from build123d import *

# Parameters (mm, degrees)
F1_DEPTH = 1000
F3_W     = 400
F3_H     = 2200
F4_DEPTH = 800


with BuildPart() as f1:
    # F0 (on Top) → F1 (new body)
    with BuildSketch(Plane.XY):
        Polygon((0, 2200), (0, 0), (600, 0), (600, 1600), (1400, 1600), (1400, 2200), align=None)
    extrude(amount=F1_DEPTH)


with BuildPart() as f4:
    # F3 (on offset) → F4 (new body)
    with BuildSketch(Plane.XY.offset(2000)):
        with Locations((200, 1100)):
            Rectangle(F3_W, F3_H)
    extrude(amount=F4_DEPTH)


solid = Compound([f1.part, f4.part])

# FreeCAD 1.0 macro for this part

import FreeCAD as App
import Part
import Sketcher

V = App.Vector

doc = App.newDocument("Part")
body = doc.addObject("PartDesign::Body", "Body")

# Sketch on XY plane
sketch1 = body.newObject("Sketcher::SketchObject", "Sketch")
sketch1.AttachmentSupport = (doc.getObject("XY_Plane"), [""])
sketch1.MapMode = "FlatFace"
sketch1.addGeometry(Part.LineSegment(V(0, 2200, 0), V(0, 0, 0)), False)
sketch1.addGeometry(Part.LineSegment(V(0, 0, 0), V(600, 0, 0)), False)
sketch1.addGeometry(Part.LineSegment(V(600, 0, 0), V(600, 1600, 0)), False)
sketch1.addGeometry(Part.LineSegment(V(600, 1600, 0), V(1400, 1600, 0)), False)
sketch1.addGeometry(Part.LineSegment(V(1400, 1600, 0), V(1400, 2200, 0)), False)
sketch1.addGeometry(Part.LineSegment(V(1400, 2200, 0), V(0, 2200, 0)), False)
sketch1.addConstraint(Sketcher.Constraint("Coincident", 0, 2, 1, 1))
sketch1.addConstraint(Sketcher.Constraint("Coincident", 1, 2, 2, 1))
sketch1.addConstraint(Sketcher.Constraint("Coincident", 2, 2, 3, 1))
sketch1.addConstraint(Sketcher.Constraint("Coincident", 3, 2, 4, 1))
sketch1.addConstraint(Sketcher.Constraint("Coincident", 4, 2, 5, 1))
sketch1.addConstraint(Sketcher.Constraint("Coincident", 5, 2, 0, 1))
sketch1.addConstraint(Sketcher.Constraint("Vertical", 0))
sketch1.addConstraint(Sketcher.Constraint("Horizontal", 1))
sketch1.addConstraint(Sketcher.Constraint("Vertical", 2))
sketch1.addConstraint(Sketcher.Constraint("Horizontal", 3))
sketch1.addConstraint(Sketcher.Constraint("Vertical", 4))
sketch1.addConstraint(Sketcher.Constraint("Horizontal", 5))
sketch1.addConstraint(Sketcher.Constraint("Coincident", 0, 2, -1, 1))
sketch1.addConstraint(Sketcher.Constraint("Equal", 1, 4))
sketch1.addConstraint(Sketcher.Constraint("DistanceX", 1, 1, 1, 2, 600.0))
sketch1.addConstraint(Sketcher.Constraint("DistanceX", 3, 1, 3, 2, 800.0))
sketch1.addConstraint(Sketcher.Constraint("DistanceY", 0, 2, 0, 1, 2200.0))
pad1 = body.newObject("PartDesign::Pad", "Pad")
pad1.Profile = sketch1
pad1.Length = 1000
body2 = doc.addObject("PartDesign::Body", "Body001")

# Sketch on XY plane
sketch2 = body2.newObject("Sketcher::SketchObject", "Sketch001")
sketch2.AttachmentSupport = (doc.getObject("XY_Plane001"), [""])
sketch2.MapMode = "FlatFace"
sketch2.AttachmentOffset = App.Placement(V(0, 0, 2000), App.Rotation())
sketch2.addGeometry(Part.LineSegment(V(0, 2200, 0), V(0, 0, 0)), False)
sketch2.addGeometry(Part.LineSegment(V(0, 0, 0), V(400, 0, 0)), False)
sketch2.addGeometry(Part.LineSegment(V(400, 0, 0), V(400, 2200, 0)), False)
sketch2.addGeometry(Part.LineSegment(V(400, 2200, 0), V(0, 2200, 0)), False)
sketch2.addConstraint(Sketcher.Constraint("Coincident", 0, 2, 1, 1))
sketch2.addConstraint(Sketcher.Constraint("Coincident", 1, 2, 2, 1))
sketch2.addConstraint(Sketcher.Constraint("Coincident", 2, 2, 3, 1))
sketch2.addConstraint(Sketcher.Constraint("Coincident", 3, 2, 0, 1))
sketch2.addConstraint(Sketcher.Constraint("Vertical", 0))
sketch2.addConstraint(Sketcher.Constraint("Horizontal", 1))
sketch2.addConstraint(Sketcher.Constraint("Vertical", 2))
sketch2.addConstraint(Sketcher.Constraint("Horizontal", 3))
sketch2.addConstraint(Sketcher.Constraint("Coincident", 0, 2, -1, 1))
sketch2.addConstraint(Sketcher.Constraint("DistanceX", 1, 1, 1, 2, 400.0))
sketch2.addConstraint(Sketcher.Constraint("DistanceY", 0, 2, 0, 1, 2200.0))
pad2 = body2.newObject("PartDesign::Pad", "Pad001")
pad2.Profile = sketch2
pad2.Length = 800

doc.recompute()
